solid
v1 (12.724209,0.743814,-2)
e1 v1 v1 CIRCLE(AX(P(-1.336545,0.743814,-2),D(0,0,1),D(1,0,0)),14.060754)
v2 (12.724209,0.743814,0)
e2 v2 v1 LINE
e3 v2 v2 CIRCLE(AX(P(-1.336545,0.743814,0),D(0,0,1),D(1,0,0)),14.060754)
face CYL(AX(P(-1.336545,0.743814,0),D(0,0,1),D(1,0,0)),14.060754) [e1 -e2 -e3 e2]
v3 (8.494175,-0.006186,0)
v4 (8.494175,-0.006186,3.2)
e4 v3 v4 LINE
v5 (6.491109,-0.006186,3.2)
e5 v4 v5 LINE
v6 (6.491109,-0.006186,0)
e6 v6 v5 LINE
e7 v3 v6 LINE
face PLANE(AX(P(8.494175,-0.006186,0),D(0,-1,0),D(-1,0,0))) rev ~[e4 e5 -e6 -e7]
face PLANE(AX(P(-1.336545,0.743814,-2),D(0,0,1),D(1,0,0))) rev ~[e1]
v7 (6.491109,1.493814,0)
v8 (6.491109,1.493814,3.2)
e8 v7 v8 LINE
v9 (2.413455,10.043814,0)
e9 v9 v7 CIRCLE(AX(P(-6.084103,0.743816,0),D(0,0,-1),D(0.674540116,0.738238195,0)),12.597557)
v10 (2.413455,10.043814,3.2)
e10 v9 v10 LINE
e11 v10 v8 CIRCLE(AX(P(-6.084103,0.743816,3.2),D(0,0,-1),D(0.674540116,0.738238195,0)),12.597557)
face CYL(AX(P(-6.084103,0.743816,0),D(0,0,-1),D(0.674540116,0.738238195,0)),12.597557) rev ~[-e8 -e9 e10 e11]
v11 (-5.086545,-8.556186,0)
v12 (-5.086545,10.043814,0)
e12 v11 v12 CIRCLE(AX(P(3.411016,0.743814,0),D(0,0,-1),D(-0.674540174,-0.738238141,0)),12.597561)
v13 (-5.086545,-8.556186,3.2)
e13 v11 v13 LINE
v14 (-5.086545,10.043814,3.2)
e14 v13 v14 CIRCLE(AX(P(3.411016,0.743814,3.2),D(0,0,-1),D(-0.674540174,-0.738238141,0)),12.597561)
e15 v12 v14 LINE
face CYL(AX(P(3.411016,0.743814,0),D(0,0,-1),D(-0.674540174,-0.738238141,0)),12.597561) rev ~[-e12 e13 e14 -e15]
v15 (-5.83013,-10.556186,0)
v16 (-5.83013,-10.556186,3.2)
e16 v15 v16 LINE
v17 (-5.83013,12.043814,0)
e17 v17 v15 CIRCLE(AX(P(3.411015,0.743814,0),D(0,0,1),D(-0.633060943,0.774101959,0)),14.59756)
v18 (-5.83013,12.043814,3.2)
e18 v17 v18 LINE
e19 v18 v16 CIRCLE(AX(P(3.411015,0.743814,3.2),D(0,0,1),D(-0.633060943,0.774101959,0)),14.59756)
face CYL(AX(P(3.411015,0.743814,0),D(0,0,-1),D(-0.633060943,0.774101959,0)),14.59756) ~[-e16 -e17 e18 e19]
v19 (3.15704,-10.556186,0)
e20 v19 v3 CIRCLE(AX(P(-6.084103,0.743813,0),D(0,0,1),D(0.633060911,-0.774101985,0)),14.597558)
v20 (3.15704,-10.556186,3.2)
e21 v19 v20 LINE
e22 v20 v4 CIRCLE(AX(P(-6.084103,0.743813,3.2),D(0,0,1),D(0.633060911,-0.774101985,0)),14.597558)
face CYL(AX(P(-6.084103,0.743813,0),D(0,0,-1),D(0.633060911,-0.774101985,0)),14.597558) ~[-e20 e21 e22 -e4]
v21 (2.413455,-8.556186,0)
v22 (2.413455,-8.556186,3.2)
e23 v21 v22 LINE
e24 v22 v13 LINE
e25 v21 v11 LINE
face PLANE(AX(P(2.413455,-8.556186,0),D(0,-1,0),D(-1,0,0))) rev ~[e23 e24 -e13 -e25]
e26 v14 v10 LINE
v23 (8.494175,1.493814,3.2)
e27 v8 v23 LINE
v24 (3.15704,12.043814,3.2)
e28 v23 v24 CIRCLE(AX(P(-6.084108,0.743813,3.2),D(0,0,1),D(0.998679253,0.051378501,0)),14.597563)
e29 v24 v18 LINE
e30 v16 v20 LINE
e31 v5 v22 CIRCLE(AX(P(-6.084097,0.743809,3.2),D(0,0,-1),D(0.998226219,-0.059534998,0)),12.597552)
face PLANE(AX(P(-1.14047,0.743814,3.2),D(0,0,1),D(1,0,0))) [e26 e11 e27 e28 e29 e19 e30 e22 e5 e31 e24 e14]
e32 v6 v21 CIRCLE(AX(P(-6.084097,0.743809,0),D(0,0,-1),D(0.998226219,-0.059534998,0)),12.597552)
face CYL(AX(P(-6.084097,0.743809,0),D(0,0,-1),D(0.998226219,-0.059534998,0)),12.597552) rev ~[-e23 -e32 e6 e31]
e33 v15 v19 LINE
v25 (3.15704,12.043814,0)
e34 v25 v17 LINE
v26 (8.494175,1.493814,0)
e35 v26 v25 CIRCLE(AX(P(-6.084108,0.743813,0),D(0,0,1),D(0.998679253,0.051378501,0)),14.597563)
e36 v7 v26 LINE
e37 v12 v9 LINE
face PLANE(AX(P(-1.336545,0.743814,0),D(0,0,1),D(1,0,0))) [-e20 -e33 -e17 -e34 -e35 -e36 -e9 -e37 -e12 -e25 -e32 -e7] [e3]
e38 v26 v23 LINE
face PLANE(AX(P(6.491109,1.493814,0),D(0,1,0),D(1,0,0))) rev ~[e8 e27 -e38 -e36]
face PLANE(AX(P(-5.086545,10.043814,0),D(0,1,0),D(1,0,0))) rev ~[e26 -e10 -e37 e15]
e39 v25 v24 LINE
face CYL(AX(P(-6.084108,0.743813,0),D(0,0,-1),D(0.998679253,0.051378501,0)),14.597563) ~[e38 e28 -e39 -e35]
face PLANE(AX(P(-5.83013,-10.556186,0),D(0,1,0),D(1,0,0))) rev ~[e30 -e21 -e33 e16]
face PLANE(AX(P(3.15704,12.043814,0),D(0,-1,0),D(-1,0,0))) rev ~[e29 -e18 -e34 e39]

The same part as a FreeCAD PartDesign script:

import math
import FreeCAD as App
import Part
import Sketcher
Q = App.Units.Quantity

doc = App.newDocument("Part")
params = doc.addObject("Spreadsheet::Sheet", "Params")
for row, (alias, value) in enumerate([
    ("sketch1_width", "7.5 mm"),
    ("pad1_length", "3.2 mm"),
    ("pad2_length", "2 mm"),
], start=1):
    params.set(f"A{row}", alias)
    params.set(f"B{row}", "=" + value)
    params.setAlias(f"B{row}", alias)

body = doc.addObject("PartDesign::Body", "Body")

# Sketch on XY plane
sketch1 = body.newObject("Sketcher::SketchObject", "Sketch")
sketch1.AttachmentSupport = (doc.getObject("XY_Plane"), [""])
sketch1.MapMode = "FlatFace"
sketch1.addGeometry([
    Part.ArcOfCircle(Part.Circle(App.Vector(3.4, 0.7, 0), App.Vector(0, 0, 1), 12.6), math.radians(132), math.radians(228)),  # 0
    Part.LineSegment(App.Vector(-5.1, 10, 0), App.Vector(2.4, 10, 0)),  # 1
    Part.ArcOfCircle(Part.Circle(App.Vector(-6.1, 0.7, 0), App.Vector(0, 0, 1), 12.6), math.radians(3), math.radians(48)),  # 2
    Part.LineSegment(App.Vector(6.5, 1.5, 0), App.Vector(8.5, 1.5, 0)),  # 3
    Part.ArcOfCircle(Part.Circle(App.Vector(-6.1, 0.7, 0), App.Vector(0, 0, 1), 14.6), math.radians(3), math.radians(51)),  # 4
    Part.LineSegment(App.Vector(3.2, 12, 0), App.Vector(-5.8, 12, 0)),  # 5
    Part.ArcOfCircle(Part.Circle(App.Vector(3.4, 0.7, 0), App.Vector(0, 0, 1), 14.6), math.radians(129), math.radians(231)),  # 6
    Part.LineSegment(App.Vector(-5.8, -10.6, 0), App.Vector(3.2, -10.6, 0)),  # 7
    Part.ArcOfCircle(Part.Circle(App.Vector(-6.1, 0.7, 0), App.Vector(0, 0, 1), 14.6), math.radians(-51), math.radians(-3)),  # 8
    Part.LineSegment(App.Vector(8.5, 0, 0), App.Vector(6.5, 0, 0)),  # 9
    Part.ArcOfCircle(Part.Circle(App.Vector(-6.1, 0.7, 0), App.Vector(0, 0, 1), 12.6), math.radians(-48), math.radians(-3)),  # 10
    Part.LineSegment(App.Vector(2.4, -8.6, 0), App.Vector(-5.1, -8.6, 0)),  # 11
], False)
sketch1.addConstraint([
    Sketcher.Constraint("Coincident", 0, 1, 1, 1),
    Sketcher.Constraint("Coincident", 1, 2, 2, 2),
    Sketcher.Constraint("Coincident", 2, 1, 3, 1),
    Sketcher.Constraint("Coincident", 3, 2, 4, 1),
    Sketcher.Constraint("Coincident", 4, 2, 5, 1),
    Sketcher.Constraint("Coincident", 5, 2, 6, 1),
    Sketcher.Constraint("Coincident", 6, 2, 7, 1),
    Sketcher.Constraint("Coincident", 7, 2, 8, 1),
    Sketcher.Constraint("Coincident", 8, 2, 9, 1),
    Sketcher.Constraint("Coincident", 9, 2, 10, 2),
    Sketcher.Constraint("Coincident", 10, 1, 11, 1),
    Sketcher.Constraint("Coincident", 11, 2, 0, 2),
    Sketcher.Constraint("Horizontal", 1),
    Sketcher.Constraint("Horizontal", 3),
    Sketcher.Constraint("Horizontal", 5),
    Sketcher.Constraint("Horizontal", 7),
    Sketcher.Constraint("Horizontal", 9),
    Sketcher.Constraint("Horizontal", 11),
    Sketcher.Constraint("Coincident", 4, 3, 2, 3),
    Sketcher.Constraint("Coincident", 6, 3, 0, 3),
    Sketcher.Constraint("Coincident", 8, 3, 2, 3),
    Sketcher.Constraint("Coincident", 10, 3, 2, 3),
    Sketcher.Constraint("Horizontal", 0, 3, 4, 3),
    Sketcher.Constraint("Vertical", 5, 2, 6, 2),
    Sketcher.Constraint("Vertical", 4, 2, 7, 2),
    Sketcher.Constraint("Vertical", 3, 2, 8, 2),
    Sketcher.Constraint("Vertical", 2, 1, 9, 2),
    Sketcher.Constraint("Vertical", 1, 2, 10, 1),
    Sketcher.Constraint("DistanceX", 1, 1, 1, 2, Q("7.5 mm")),
    Sketcher.Constraint("DistanceY", 1, 2, 4, 2, Q("2 mm")),
    Sketcher.Constraint("DistanceY", 4, 3, 0, 1, Q("9.300001 mm")),
    Sketcher.Constraint("DistanceY", 8, 2, 3, 2, Q("1.5 mm")),
    Sketcher.Constraint("Radius", 0, Q("12.597561 mm")),
    Sketcher.Constraint("Radius", 6, Q("14.59756 mm")),
    Sketcher.Constraint("Radius", 10, Q("12.597552 mm")),
    Sketcher.Constraint("Radius", 4, Q("14.597563 mm")),
    Sketcher.Constraint("DistanceY", -1, 1, 10, 3, Q("0.743809 mm")),
    Sketcher.Constraint("DistanceX", -1, 1, 2, 1, Q("6.491109 mm")),
])
sketch1.setExpression("Constraints[28]", "Params.sketch1_width")
pad1 = body.newObject("PartDesign::Pad", "Pad")
pad1.Profile = sketch1
pad1.setExpression("Length", "Params.pad1_length")

# Sketch on XY plane
sketch2 = body.newObject("Sketcher::SketchObject", "Sketch001")
sketch2.AttachmentSupport = (doc.getObject("XY_Plane"), [""])
sketch2.MapMode = "FlatFace"
sketch2.addGeometry(Part.Circle(App.Vector(-1, 1, 0), App.Vector(0, 0, 1), 14), False)
sketch2.addConstraint([
    Sketcher.Constraint("Diameter", 0, Q("28.121508 mm")),
    Sketcher.Constraint("DistanceX", 0, 3, -1, 1, Q("1.336545 mm")),
    Sketcher.Constraint("DistanceY", -1, 1, 0, 3, Q("0.743814 mm")),
])
pad2 = body.newObject("PartDesign::Pad", "Pad001")
pad2.Profile = sketch2
pad2.setExpression("Length", "Params.pad2_length")
pad2.Reversed = True

doc.recompute()
